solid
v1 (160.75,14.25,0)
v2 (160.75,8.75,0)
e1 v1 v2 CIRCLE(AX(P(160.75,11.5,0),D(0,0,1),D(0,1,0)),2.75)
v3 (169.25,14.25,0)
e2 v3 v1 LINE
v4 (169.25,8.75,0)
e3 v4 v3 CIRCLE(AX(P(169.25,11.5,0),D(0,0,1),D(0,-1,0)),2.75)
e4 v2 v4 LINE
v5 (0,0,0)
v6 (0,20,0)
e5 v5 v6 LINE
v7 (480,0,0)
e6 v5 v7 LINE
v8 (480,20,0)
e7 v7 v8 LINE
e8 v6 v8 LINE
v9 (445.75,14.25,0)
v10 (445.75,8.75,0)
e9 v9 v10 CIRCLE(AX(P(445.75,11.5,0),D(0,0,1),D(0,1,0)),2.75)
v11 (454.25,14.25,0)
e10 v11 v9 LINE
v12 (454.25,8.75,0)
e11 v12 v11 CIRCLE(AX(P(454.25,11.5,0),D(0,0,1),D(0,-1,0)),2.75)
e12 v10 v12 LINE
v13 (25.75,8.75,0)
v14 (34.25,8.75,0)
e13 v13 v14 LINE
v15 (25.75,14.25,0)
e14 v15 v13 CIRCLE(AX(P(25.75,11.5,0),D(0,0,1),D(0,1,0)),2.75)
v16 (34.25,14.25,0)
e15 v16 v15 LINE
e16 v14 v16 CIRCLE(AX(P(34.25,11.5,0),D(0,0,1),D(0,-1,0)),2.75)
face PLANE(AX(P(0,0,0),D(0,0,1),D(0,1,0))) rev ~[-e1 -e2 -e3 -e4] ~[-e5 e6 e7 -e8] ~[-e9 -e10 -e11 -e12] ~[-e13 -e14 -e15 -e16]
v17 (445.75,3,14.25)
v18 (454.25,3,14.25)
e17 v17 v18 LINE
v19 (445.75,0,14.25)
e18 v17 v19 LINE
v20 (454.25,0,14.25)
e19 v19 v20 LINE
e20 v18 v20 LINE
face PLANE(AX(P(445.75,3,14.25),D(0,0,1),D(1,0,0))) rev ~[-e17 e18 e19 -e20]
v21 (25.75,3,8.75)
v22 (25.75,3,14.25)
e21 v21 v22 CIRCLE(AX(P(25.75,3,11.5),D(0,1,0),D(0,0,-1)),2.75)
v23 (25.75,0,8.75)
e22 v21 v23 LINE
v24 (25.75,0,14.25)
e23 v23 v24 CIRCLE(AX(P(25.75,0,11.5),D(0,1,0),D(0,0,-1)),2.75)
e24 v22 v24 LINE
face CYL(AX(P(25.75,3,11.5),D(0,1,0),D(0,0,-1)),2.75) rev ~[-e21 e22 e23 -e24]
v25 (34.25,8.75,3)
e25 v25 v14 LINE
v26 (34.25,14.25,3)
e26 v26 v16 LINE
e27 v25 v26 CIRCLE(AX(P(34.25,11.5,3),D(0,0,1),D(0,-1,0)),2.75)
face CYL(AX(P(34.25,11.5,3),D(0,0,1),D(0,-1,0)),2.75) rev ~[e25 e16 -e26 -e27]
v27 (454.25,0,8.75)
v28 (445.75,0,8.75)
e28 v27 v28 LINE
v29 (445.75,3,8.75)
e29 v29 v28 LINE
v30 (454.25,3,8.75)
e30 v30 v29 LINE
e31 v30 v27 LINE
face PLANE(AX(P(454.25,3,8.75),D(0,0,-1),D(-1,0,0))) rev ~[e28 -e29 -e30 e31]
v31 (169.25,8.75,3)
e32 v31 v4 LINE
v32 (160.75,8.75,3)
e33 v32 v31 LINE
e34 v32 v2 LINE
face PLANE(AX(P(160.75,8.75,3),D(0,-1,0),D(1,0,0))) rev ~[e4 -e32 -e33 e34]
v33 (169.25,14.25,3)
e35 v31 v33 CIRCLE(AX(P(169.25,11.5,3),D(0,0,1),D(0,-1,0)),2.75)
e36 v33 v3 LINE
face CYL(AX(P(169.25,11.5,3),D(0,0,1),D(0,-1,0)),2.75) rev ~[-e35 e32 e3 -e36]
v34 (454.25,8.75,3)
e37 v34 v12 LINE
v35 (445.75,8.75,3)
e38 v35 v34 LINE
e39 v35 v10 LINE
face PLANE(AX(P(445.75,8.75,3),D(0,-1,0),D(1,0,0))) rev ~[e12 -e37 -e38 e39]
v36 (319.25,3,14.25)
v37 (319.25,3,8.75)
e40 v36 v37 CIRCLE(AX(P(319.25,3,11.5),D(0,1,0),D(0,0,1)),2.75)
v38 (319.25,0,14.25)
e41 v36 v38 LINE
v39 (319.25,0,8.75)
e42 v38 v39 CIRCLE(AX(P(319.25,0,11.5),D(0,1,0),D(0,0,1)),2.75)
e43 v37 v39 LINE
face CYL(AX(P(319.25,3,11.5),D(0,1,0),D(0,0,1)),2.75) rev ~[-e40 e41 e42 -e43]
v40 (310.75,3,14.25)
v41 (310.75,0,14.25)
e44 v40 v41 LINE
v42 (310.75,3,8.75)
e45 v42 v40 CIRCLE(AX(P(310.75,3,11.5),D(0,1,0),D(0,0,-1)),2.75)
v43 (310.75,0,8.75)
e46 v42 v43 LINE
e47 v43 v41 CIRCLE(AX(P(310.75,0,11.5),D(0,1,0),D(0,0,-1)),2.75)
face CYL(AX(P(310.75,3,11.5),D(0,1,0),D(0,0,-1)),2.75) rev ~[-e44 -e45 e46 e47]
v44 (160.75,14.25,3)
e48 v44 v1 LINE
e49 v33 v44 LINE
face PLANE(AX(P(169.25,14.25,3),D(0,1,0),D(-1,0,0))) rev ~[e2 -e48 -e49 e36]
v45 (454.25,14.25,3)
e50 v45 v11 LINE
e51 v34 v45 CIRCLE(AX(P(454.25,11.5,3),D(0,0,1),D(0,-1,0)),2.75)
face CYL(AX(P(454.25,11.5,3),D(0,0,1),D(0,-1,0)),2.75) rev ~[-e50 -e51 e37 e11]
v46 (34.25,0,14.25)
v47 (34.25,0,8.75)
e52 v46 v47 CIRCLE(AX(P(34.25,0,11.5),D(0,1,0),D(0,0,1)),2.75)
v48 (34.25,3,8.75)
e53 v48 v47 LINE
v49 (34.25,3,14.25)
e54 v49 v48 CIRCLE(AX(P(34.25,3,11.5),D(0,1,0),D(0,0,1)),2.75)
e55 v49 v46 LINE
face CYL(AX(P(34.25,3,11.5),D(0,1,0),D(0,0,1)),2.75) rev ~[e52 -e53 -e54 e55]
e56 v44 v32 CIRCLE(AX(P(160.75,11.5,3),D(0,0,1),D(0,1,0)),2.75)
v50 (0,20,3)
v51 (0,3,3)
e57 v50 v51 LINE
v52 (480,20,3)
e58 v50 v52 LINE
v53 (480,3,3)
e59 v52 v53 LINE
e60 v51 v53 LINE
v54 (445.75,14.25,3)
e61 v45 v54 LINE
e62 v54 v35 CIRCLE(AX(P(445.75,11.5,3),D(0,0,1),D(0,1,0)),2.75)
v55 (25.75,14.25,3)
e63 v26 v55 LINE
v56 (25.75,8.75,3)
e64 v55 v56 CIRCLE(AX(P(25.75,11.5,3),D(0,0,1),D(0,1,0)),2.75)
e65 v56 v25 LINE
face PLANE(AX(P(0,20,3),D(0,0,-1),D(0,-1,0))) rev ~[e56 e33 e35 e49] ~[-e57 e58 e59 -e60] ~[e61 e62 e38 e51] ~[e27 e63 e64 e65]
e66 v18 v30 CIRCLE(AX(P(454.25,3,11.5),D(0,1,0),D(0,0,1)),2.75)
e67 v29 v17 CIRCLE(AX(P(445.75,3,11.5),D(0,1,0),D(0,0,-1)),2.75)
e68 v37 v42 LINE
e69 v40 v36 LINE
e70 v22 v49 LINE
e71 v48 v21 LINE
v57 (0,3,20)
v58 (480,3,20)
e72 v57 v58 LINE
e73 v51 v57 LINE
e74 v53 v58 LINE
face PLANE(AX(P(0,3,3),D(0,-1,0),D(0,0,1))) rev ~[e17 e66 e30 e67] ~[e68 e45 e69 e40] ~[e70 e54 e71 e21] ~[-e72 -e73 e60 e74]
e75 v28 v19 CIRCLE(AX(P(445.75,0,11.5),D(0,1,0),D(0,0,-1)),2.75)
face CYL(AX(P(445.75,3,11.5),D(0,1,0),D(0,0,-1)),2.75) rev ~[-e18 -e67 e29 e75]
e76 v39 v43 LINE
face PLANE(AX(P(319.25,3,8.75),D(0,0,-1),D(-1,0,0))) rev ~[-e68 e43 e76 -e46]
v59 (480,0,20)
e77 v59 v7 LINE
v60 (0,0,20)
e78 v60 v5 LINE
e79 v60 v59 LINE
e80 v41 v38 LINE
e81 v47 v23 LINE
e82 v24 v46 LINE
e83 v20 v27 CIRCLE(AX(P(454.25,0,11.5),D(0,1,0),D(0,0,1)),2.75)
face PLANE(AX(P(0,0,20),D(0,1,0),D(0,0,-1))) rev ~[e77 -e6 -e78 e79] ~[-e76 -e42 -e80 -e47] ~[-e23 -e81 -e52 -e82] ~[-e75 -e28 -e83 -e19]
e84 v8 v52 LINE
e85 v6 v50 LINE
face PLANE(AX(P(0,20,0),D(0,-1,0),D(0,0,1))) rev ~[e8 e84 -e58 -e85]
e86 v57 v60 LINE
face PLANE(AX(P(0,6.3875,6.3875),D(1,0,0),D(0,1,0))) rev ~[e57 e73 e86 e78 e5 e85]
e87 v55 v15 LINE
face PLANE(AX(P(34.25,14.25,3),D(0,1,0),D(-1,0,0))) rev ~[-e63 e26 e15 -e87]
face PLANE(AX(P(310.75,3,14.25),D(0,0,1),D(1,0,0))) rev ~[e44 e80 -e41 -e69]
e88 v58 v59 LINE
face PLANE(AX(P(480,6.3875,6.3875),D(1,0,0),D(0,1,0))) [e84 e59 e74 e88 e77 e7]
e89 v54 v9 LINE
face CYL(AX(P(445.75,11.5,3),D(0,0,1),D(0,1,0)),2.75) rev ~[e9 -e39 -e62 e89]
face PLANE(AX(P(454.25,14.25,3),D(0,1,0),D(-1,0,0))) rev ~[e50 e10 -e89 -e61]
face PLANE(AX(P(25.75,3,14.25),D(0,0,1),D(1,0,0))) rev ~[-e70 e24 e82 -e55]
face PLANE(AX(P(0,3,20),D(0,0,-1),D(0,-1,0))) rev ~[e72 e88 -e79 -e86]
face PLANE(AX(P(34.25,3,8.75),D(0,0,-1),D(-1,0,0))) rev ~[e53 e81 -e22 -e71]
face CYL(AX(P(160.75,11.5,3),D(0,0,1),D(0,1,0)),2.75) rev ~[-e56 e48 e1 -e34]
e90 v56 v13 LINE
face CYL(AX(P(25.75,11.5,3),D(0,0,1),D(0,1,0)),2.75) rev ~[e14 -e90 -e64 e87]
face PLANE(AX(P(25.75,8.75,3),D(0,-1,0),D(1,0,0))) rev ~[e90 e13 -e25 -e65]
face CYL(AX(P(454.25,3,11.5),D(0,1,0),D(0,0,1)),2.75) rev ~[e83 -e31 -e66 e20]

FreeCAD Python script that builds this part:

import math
import FreeCAD as App
import Part
import Sketcher
from FreeCAD import Vector

doc = App.newDocument("Part")
body = doc.addObject("PartDesign::Body", "Body")

# Sketch on YZ plane
sketch1 = doc.addObject("Sketcher::SketchObject", "Sketch")
body.addObject(sketch1)
sketch1.AttachmentSupport = (doc.YZ_Plane, [""])
sketch1.MapMode = "FlatFace"
sketch1.addGeometry(Part.LineSegment(Vector(0, 20, 0), Vector(0, 0, 0)), False)
sketch1.addGeometry(Part.LineSegment(Vector(0, 0, 0), Vector(20, 0, 0)), False)
sketch1.addGeometry(Part.LineSegment(Vector(20, 0, 0), Vector(20, 3, 0)), False)
sketch1.addGeometry(Part.LineSegment(Vector(20, 3, 0), Vector(3, 3, 0)), False)
sketch1.addGeometry(Part.LineSegment(Vector(3, 3, 0), Vector(3, 20, 0)), False)
sketch1.addGeometry(Part.LineSegment(Vector(3, 20, 0), Vector(0, 20, 0)), False)
sketch1.addConstraint(Sketcher.Constraint("Coincident", 0, 2, 1, 1))
sketch1.addConstraint(Sketcher.Constraint("Coincident", 1, 2, 2, 1))
sketch1.addConstraint(Sketcher.Constraint("Coincident", 2, 2, 3, 1))
sketch1.addConstraint(Sketcher.Constraint("Coincident", 3, 2, 4, 1))
sketch1.addConstraint(Sketcher.Constraint("Coincident", 4, 2, 5, 1))
sketch1.addConstraint(Sketcher.Constraint("Coincident", 5, 2, 0, 1))
sketch1.addConstraint(Sketcher.Constraint("Vertical", 0))
sketch1.addConstraint(Sketcher.Constraint("Horizontal", 1))
sketch1.addConstraint(Sketcher.Constraint("Vertical", 2))
sketch1.addConstraint(Sketcher.Constraint("Horizontal", 3))
sketch1.addConstraint(Sketcher.Constraint("Vertical", 4))
sketch1.addConstraint(Sketcher.Constraint("Horizontal", 5))
sketch1.addConstraint(Sketcher.Constraint("Coincident", 0, 2, -1, 1))
sketch1.addConstraint(Sketcher.Constraint("Equal", 1, 0))
sketch1.addConstraint(Sketcher.Constraint("Equal", 5, 2))
sketch1.addConstraint(Sketcher.Constraint("DistanceX", 1, 1, 1, 2, 20.0))
sketch1.addConstraint(Sketcher.Constraint("DistanceX", 3, 2, 3, 1, 17.0))
pad1 = doc.addObject("PartDesign::Pad", "Pad")
body.addObject(pad1)
pad1.Profile = sketch1
pad1.Length = 480

# Sketch on XZ plane
sketch2 = doc.addObject("Sketcher::SketchObject", "Sketch001")
body.addObject(sketch2)
sketch2.AttachmentSupport = (doc.XZ_Plane, [""])
sketch2.MapMode = "FlatFace"
sketch2.AttachmentOffset = App.Placement(Vector(0, 0, -3), App.Rotation())
sketch2.addGeometry(Part.LineSegment(Vector(445.75, 14.25, 0), Vector(454.25, 14.25, 0)), False)
sketch2.addGeometry(Part.ArcOfCircle(Part.Circle(Vector(454.25, 11.5, 0), Vector(0, 0, 1), 2.75), math.radians(-90), math.radians(90)), False)
sketch2.addGeometry(Part.LineSegment(Vector(454.25, 8.75, 0), Vector(445.75, 8.75, 0)), False)
sketch2.addGeometry(Part.ArcOfCircle(Part.Circle(Vector(445.75, 11.5, 0), Vector(0, 0, 1), 2.75), math.radians(90), math.radians(270)), False)
sketch2.addGeometry(Part.LineSegment(Vector(25.75, 14.25, 0), Vector(34.25, 14.25, 0)), False)
sketch2.addGeometry(Part.ArcOfCircle(Part.Circle(Vector(34.25, 11.5, 0), Vector(0, 0, 1), 2.75), math.radians(-90), math.radians(90)), False)
sketch2.addGeometry(Part.LineSegment(Vector(34.25, 8.75, 0), Vector(25.75, 8.75, 0)), False)
sketch2.addGeometry(Part.ArcOfCircle(Part.Circle(Vector(25.75, 11.5, 0), Vector(0, 0, 1), 2.75), math.radians(90), math.radians(270)), False)
sketch2.addGeometry(Part.LineSegment(Vector(310.75, 14.25, 0), Vector(319.25, 14.25, 0)), False)
sketch2.addGeometry(Part.ArcOfCircle(Part.Circle(Vector(319.25, 11.5, 0), Vector(0, 0, 1), 2.75), math.radians(-90), math.radians(90)), False)
sketch2.addGeometry(Part.LineSegment(Vector(319.25, 8.75, 0), Vector(310.75, 8.75, 0)), False)
sketch2.addGeometry(Part.ArcOfCircle(Part.Circle(Vector(310.75, 11.5, 0), Vector(0, 0, 1), 2.75), math.radians(90), math.radians(270)), False)
sketch2.addConstraint(Sketcher.Constraint("Tangent", 0, 2, 1, 2))
sketch2.addConstraint(Sketcher.Constraint("Tangent", 1, 1, 2, 1))
sketch2.addConstraint(Sketcher.Constraint("Tangent", 2, 2, 3, 2))
sketch2.addConstraint(Sketcher.Constraint("Tangent", 3, 1, 0, 1))
sketch2.addConstraint(Sketcher.Constraint("Tangent", 4, 2, 5, 2))
sketch2.addConstraint(Sketcher.Constraint("Tangent", 5, 1, 6, 1))
sketch2.addConstraint(Sketcher.Constraint("Tangent", 6, 2, 7, 2))
sketch2.addConstraint(Sketcher.Constraint("Tangent", 7, 1, 4, 1))
sketch2.addConstraint(Sketcher.Constraint("Tangent", 8, 2, 9, 2))
sketch2.addConstraint(Sketcher.Constraint("Tangent", 9, 1, 10, 1))
sketch2.addConstraint(Sketcher.Constraint("Tangent", 10, 2, 11, 2))
sketch2.addConstraint(Sketcher.Constraint("Tangent", 11, 1, 8, 1))
sketch2.addConstraint(Sketcher.Constraint("Horizontal", 0))
sketch2.addConstraint(Sketcher.Constraint("Horizontal", 2))
sketch2.addConstraint(Sketcher.Constraint("Horizontal", 4))
sketch2.addConstraint(Sketcher.Constraint("Horizontal", 6))
sketch2.addConstraint(Sketcher.Constraint("Horizontal", 8))
sketch2.addConstraint(Sketcher.Constraint("Horizontal", 10))
sketch2.addConstraint(Sketcher.Constraint("Equal", 3, 5))
sketch2.addConstraint(Sketcher.Constraint("Equal", 7, 9))
sketch2.addConstraint(Sketcher.Constraint("Horizontal", 3, 3, 5, 3))
sketch2.addConstraint(Sketcher.Constraint("Horizontal", 7, 3, 9, 3))
sketch2.addConstraint(Sketcher.Constraint("Equal", 2, 4))
sketch2.addConstraint(Sketcher.Constraint("Equal", 6, 8))
sketch2.addConstraint(Sketcher.Constraint("Radius", 1, 2.75))
sketch2.addConstraint(Sketcher.Constraint("DistanceX", 0, 1, 0, 2, 8.5))
sketch2.addConstraint(Sketcher.Constraint("DistanceX", 5, 3, 1, 3, 420.0))
sketch2.addConstraint(Sketcher.Constraint("DistanceX", 9, 3, 1, 3, 135.0))
sketch2.addConstraint(Sketcher.Constraint("DistanceY", -1, 1, 1, 3, 11.5))
sketch2.addConstraint(Sketcher.Constraint("DistanceX", -1, 1, 1, 3, 454.25))
pocket1 = doc.addObject("PartDesign::Pocket", "Pocket")
body.addObject(pocket1)
pocket1.Profile = sketch2
pocket1.Length = 3
pocket1.Reversed = True

# Sketch on XY plane
sketch3 = doc.addObject("Sketcher::SketchObject", "Sketch002")
body.addObject(sketch3)
sketch3.AttachmentSupport = (doc.XY_Plane, [""])
sketch3.MapMode = "FlatFace"
sketch3.AttachmentOffset = App.Placement(Vector(0, 0, 3), App.Rotation())
sketch3.addGeometry(Part.LineSegment(Vector(454.25, 14.25, 0), Vector(445.75, 14.25, 0)), False)
sketch3.addGeometry(Part.ArcOfCircle(Part.Circle(Vector(445.75, 11.5, 0), Vector(0, 0, 1), 2.75), math.radians(90), math.radians(270)), False)
sketch3.addGeometry(Part.LineSegment(Vector(445.75, 8.75, 0), Vector(454.25, 8.75, 0)), False)
sketch3.addGeometry(Part.ArcOfCircle(Part.Circle(Vector(454.25, 11.5, 0), Vector(0, 0, 1), 2.75), math.radians(-90), math.radians(90)), False)
sketch3.addGeometry(Part.LineSegment(Vector(169.25, 14.25, 0), Vector(160.75, 14.25, 0)), False)
sketch3.addGeometry(Part.ArcOfCircle(Part.Circle(Vector(160.75, 11.5, 0), Vector(0, 0, 1), 2.75), math.radians(90), math.radians(270)), False)
sketch3.addGeometry(Part.LineSegment(Vector(160.75, 8.75, 0), Vector(169.25, 8.75, 0)), False)
sketch3.addGeometry(Part.ArcOfCircle(Part.Circle(Vector(169.25, 11.5, 0), Vector(0, 0, 1), 2.75), math.radians(-90), math.radians(90)), False)
sketch3.addGeometry(Part.LineSegment(Vector(34.25, 14.25, 0), Vector(25.75, 14.25, 0)), False)
sketch3.addGeometry(Part.ArcOfCircle(Part.Circle(Vector(25.75, 11.5, 0), Vector(0, 0, 1), 2.75), math.radians(90), math.radians(270)), False)
sketch3.addGeometry(Part.LineSegment(Vector(25.75, 8.75, 0), Vector(34.25, 8.75, 0)), False)
sketch3.addGeometry(Part.ArcOfCircle(Part.Circle(Vector(34.25, 11.5, 0), Vector(0, 0, 1), 2.75), math.radians(-90), math.radians(90)), False)
sketch3.addConstraint(Sketcher.Constraint("Tangent", 0, 2, 1, 1))
sketch3.addConstraint(Sketcher.Constraint("Tangent", 1, 2, 2, 1))
sketch3.addConstraint(Sketcher.Constraint("Tangent", 2, 2, 3, 1))
sketch3.addConstraint(Sketcher.Constraint("Tangent", 3, 2, 0, 1))
sketch3.addConstraint(Sketcher.Constraint("Tangent", 4, 2, 5, 1))
sketch3.addConstraint(Sketcher.Constraint("Tangent", 5, 2, 6, 1))
sketch3.addConstraint(Sketcher.Constraint("Tangent", 6, 2, 7, 1))
sketch3.addConstraint(Sketcher.Constraint("Tangent", 7, 2, 4, 1))
sketch3.addConstraint(Sketcher.Constraint("Tangent", 8, 2, 9, 1))
sketch3.addConstraint(Sketcher.Constraint("Tangent", 9, 2, 10, 1))
sketch3.addConstraint(Sketcher.Constraint("Tangent", 10, 2, 11, 1))
sketch3.addConstraint(Sketcher.Constraint("Tangent", 11, 2, 8, 1))
sketch3.addConstraint(Sketcher.Constraint("Horizontal", 0))
sketch3.addConstraint(Sketcher.Constraint("Horizontal", 2))
sketch3.addConstraint(Sketcher.Constraint("Horizontal", 4))
sketch3.addConstraint(Sketcher.Constraint("Horizontal", 6))
sketch3.addConstraint(Sketcher.Constraint("Horizontal", 8))
sketch3.addConstraint(Sketcher.Constraint("Horizontal", 10))
sketch3.addConstraint(Sketcher.Constraint("Equal", 3, 5))
sketch3.addConstraint(Sketcher.Constraint("Equal", 7, 9))
sketch3.addConstraint(Sketcher.Constraint("Horizontal", 3, 3, 5, 3))
sketch3.addConstraint(Sketcher.Constraint("Horizontal", 7, 3, 9, 3))
sketch3.addConstraint(Sketcher.Constraint("Equal", 2, 4))
sketch3.addConstraint(Sketcher.Constraint("Equal", 6, 8))
sketch3.addConstraint(Sketcher.Constraint("Radius", 1, 2.75))
sketch3.addConstraint(Sketcher.Constraint("DistanceX", 0, 2, 0, 1, 8.5))
sketch3.addConstraint(Sketcher.Constraint("DistanceX", 5, 3, 1, 3, 285.0))
sketch3.addConstraint(Sketcher.Constraint("DistanceX", 9, 3, 5, 3, 135.0))
sketch3.addConstraint(Sketcher.Constraint("DistanceY", -1, 1, 1, 3, 11.5))
sketch3.addConstraint(Sketcher.Constraint("DistanceX", -1, 1, 1, 3, 445.75))
pocket2 = doc.addObject("PartDesign::Pocket", "Pocket001")
body.addObject(pocket2)
pocket2.Profile = sketch3
pocket2.Length = 3

doc.recompute()
